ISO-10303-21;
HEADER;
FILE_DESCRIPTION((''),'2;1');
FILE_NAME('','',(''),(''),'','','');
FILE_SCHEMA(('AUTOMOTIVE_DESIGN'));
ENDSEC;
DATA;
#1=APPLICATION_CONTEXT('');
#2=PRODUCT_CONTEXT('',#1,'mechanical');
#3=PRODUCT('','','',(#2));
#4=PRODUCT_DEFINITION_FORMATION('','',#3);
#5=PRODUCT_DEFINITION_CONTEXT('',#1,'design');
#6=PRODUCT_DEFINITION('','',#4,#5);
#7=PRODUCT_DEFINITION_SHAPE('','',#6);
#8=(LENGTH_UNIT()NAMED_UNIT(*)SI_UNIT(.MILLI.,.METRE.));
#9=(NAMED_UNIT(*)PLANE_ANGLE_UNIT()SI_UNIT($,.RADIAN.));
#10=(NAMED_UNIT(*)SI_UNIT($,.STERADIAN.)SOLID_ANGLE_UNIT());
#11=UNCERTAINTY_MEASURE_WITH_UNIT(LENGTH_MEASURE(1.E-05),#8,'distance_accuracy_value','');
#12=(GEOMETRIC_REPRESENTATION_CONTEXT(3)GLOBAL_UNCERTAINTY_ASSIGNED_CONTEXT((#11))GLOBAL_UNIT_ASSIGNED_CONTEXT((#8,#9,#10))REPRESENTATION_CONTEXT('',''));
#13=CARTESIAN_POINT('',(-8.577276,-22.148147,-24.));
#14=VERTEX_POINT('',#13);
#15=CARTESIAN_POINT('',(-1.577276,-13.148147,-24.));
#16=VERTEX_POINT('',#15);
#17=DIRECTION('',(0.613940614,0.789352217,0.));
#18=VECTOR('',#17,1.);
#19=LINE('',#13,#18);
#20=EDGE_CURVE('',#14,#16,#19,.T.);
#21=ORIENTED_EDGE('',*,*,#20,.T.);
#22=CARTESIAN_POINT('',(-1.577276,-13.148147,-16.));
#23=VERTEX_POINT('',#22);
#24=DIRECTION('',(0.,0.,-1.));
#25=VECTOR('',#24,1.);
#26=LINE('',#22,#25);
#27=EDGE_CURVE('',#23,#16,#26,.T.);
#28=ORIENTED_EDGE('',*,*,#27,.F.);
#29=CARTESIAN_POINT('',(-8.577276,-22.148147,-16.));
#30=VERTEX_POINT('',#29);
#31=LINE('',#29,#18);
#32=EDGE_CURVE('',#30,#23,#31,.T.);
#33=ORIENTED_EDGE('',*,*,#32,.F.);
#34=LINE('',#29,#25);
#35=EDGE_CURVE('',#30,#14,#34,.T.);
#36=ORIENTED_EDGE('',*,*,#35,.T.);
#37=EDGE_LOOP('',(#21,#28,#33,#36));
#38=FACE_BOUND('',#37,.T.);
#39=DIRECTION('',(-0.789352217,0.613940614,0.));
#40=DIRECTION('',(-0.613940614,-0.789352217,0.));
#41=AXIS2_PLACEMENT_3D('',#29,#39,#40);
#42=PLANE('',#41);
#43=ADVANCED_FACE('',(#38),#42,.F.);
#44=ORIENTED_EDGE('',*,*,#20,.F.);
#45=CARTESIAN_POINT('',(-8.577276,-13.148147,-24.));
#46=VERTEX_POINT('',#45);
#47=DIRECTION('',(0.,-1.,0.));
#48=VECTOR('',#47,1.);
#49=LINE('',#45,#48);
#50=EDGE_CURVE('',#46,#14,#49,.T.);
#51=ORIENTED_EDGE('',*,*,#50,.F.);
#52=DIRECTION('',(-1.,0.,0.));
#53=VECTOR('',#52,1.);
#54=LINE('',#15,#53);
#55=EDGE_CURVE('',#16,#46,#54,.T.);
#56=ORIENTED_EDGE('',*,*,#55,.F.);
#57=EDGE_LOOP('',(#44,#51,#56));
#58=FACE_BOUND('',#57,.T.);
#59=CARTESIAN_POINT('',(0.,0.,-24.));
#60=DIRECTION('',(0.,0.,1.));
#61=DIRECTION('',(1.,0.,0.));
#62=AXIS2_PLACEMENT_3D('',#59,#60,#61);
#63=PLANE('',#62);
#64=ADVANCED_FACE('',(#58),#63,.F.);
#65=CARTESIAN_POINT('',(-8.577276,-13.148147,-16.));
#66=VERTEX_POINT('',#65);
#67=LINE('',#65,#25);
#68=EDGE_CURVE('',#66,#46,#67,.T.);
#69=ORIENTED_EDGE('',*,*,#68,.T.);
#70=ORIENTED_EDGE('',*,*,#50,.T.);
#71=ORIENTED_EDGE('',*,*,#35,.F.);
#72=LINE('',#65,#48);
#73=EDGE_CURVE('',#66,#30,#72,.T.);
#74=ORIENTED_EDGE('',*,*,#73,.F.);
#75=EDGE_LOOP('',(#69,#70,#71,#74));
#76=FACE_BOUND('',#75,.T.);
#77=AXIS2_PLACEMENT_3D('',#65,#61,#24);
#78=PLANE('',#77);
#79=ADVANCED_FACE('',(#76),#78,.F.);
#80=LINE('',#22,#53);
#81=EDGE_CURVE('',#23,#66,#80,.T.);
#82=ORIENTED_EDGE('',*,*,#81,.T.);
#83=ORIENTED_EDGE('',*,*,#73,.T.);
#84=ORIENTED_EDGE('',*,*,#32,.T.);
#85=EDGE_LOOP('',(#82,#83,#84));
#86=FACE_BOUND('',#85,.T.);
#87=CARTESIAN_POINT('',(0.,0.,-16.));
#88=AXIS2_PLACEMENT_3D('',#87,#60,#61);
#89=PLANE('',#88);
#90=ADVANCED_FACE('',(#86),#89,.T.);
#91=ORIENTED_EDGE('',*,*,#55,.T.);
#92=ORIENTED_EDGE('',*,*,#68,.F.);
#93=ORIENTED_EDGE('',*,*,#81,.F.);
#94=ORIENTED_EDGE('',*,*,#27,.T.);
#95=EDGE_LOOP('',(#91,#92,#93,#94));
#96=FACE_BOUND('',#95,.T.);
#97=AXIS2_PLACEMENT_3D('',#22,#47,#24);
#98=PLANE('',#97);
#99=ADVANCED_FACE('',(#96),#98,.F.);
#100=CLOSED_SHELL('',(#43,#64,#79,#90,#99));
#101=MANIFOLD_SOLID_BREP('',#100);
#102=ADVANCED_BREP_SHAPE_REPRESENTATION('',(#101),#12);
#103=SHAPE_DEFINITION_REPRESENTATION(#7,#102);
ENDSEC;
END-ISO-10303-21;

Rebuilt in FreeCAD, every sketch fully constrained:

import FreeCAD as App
import Part
import Sketcher
from FreeCAD import Vector

doc = App.newDocument("Part")
params = doc.addObject("Spreadsheet::Sheet", "Params")
for row, (alias, value) in enumerate([
    ("sketch1_width", "7 mm"),
    ("sketch1_height", "9 mm"),
    ("pad1_length", "8 mm"),
], start=1):
    params.set(f"A{row}", alias)
    params.set(f"B{row}", "=" + value)
    params.setAlias(f"B{row}", alias)

body = doc.addObject("PartDesign::Body", "Body")

# Sketch on XY plane
sketch1 = doc.addObject("Sketcher::SketchObject", "Sketch")
body.addObject(sketch1)
sketch1.AttachmentSupport = (doc.XY_Plane, [""])
sketch1.MapMode = "FlatFace"
sketch1.AttachmentOffset = App.Placement(Vector(0, 0, -20), App.Rotation())
sketch1.addGeometry([
    Part.LineSegment(Vector(-8.577276, -13.148147, 0), Vector(-8.577276, -22.148147, 0)),
    Part.LineSegment(Vector(-8.577276, -22.148147, 0), Vector(-1.577276, -13.148147, 0)),
    Part.LineSegment(Vector(-1.577276, -13.148147, 0), Vector(-8.577276, -13.148147, 0)),
], False)
sketch1.addConstraint([
    Sketcher.Constraint("Coincident", 0, 2, 1, 1),
    Sketcher.Constraint("Coincident", 1, 2, 2, 1),
    Sketcher.Constraint("Coincident", 2, 2, 0, 1),
    Sketcher.Constraint("Vertical", 0),
    Sketcher.Constraint("Horizontal", 2),
    Sketcher.Constraint("DistanceX", 2, 2, 2, 1, 7.0),
    Sketcher.Constraint("DistanceY", 0, 2, 0, 1, 9.0),
    Sketcher.Constraint("DistanceX", 0, 2, -1, 1, 8.577276),
    Sketcher.Constraint("DistanceY", 0, 2, -1, 1, 22.148147),
])
sketch1.setExpression("Constraints[5]", "Params.sketch1_width")
sketch1.setExpression("Constraints[6]", "Params.sketch1_height")
pad1 = doc.addObject("PartDesign::Pad", "Pad")
body.addObject(pad1)
pad1.Profile = sketch1
pad1.setExpression("Length", "Params.pad1_length")
pad1.Midplane = True

doc.recompute()
